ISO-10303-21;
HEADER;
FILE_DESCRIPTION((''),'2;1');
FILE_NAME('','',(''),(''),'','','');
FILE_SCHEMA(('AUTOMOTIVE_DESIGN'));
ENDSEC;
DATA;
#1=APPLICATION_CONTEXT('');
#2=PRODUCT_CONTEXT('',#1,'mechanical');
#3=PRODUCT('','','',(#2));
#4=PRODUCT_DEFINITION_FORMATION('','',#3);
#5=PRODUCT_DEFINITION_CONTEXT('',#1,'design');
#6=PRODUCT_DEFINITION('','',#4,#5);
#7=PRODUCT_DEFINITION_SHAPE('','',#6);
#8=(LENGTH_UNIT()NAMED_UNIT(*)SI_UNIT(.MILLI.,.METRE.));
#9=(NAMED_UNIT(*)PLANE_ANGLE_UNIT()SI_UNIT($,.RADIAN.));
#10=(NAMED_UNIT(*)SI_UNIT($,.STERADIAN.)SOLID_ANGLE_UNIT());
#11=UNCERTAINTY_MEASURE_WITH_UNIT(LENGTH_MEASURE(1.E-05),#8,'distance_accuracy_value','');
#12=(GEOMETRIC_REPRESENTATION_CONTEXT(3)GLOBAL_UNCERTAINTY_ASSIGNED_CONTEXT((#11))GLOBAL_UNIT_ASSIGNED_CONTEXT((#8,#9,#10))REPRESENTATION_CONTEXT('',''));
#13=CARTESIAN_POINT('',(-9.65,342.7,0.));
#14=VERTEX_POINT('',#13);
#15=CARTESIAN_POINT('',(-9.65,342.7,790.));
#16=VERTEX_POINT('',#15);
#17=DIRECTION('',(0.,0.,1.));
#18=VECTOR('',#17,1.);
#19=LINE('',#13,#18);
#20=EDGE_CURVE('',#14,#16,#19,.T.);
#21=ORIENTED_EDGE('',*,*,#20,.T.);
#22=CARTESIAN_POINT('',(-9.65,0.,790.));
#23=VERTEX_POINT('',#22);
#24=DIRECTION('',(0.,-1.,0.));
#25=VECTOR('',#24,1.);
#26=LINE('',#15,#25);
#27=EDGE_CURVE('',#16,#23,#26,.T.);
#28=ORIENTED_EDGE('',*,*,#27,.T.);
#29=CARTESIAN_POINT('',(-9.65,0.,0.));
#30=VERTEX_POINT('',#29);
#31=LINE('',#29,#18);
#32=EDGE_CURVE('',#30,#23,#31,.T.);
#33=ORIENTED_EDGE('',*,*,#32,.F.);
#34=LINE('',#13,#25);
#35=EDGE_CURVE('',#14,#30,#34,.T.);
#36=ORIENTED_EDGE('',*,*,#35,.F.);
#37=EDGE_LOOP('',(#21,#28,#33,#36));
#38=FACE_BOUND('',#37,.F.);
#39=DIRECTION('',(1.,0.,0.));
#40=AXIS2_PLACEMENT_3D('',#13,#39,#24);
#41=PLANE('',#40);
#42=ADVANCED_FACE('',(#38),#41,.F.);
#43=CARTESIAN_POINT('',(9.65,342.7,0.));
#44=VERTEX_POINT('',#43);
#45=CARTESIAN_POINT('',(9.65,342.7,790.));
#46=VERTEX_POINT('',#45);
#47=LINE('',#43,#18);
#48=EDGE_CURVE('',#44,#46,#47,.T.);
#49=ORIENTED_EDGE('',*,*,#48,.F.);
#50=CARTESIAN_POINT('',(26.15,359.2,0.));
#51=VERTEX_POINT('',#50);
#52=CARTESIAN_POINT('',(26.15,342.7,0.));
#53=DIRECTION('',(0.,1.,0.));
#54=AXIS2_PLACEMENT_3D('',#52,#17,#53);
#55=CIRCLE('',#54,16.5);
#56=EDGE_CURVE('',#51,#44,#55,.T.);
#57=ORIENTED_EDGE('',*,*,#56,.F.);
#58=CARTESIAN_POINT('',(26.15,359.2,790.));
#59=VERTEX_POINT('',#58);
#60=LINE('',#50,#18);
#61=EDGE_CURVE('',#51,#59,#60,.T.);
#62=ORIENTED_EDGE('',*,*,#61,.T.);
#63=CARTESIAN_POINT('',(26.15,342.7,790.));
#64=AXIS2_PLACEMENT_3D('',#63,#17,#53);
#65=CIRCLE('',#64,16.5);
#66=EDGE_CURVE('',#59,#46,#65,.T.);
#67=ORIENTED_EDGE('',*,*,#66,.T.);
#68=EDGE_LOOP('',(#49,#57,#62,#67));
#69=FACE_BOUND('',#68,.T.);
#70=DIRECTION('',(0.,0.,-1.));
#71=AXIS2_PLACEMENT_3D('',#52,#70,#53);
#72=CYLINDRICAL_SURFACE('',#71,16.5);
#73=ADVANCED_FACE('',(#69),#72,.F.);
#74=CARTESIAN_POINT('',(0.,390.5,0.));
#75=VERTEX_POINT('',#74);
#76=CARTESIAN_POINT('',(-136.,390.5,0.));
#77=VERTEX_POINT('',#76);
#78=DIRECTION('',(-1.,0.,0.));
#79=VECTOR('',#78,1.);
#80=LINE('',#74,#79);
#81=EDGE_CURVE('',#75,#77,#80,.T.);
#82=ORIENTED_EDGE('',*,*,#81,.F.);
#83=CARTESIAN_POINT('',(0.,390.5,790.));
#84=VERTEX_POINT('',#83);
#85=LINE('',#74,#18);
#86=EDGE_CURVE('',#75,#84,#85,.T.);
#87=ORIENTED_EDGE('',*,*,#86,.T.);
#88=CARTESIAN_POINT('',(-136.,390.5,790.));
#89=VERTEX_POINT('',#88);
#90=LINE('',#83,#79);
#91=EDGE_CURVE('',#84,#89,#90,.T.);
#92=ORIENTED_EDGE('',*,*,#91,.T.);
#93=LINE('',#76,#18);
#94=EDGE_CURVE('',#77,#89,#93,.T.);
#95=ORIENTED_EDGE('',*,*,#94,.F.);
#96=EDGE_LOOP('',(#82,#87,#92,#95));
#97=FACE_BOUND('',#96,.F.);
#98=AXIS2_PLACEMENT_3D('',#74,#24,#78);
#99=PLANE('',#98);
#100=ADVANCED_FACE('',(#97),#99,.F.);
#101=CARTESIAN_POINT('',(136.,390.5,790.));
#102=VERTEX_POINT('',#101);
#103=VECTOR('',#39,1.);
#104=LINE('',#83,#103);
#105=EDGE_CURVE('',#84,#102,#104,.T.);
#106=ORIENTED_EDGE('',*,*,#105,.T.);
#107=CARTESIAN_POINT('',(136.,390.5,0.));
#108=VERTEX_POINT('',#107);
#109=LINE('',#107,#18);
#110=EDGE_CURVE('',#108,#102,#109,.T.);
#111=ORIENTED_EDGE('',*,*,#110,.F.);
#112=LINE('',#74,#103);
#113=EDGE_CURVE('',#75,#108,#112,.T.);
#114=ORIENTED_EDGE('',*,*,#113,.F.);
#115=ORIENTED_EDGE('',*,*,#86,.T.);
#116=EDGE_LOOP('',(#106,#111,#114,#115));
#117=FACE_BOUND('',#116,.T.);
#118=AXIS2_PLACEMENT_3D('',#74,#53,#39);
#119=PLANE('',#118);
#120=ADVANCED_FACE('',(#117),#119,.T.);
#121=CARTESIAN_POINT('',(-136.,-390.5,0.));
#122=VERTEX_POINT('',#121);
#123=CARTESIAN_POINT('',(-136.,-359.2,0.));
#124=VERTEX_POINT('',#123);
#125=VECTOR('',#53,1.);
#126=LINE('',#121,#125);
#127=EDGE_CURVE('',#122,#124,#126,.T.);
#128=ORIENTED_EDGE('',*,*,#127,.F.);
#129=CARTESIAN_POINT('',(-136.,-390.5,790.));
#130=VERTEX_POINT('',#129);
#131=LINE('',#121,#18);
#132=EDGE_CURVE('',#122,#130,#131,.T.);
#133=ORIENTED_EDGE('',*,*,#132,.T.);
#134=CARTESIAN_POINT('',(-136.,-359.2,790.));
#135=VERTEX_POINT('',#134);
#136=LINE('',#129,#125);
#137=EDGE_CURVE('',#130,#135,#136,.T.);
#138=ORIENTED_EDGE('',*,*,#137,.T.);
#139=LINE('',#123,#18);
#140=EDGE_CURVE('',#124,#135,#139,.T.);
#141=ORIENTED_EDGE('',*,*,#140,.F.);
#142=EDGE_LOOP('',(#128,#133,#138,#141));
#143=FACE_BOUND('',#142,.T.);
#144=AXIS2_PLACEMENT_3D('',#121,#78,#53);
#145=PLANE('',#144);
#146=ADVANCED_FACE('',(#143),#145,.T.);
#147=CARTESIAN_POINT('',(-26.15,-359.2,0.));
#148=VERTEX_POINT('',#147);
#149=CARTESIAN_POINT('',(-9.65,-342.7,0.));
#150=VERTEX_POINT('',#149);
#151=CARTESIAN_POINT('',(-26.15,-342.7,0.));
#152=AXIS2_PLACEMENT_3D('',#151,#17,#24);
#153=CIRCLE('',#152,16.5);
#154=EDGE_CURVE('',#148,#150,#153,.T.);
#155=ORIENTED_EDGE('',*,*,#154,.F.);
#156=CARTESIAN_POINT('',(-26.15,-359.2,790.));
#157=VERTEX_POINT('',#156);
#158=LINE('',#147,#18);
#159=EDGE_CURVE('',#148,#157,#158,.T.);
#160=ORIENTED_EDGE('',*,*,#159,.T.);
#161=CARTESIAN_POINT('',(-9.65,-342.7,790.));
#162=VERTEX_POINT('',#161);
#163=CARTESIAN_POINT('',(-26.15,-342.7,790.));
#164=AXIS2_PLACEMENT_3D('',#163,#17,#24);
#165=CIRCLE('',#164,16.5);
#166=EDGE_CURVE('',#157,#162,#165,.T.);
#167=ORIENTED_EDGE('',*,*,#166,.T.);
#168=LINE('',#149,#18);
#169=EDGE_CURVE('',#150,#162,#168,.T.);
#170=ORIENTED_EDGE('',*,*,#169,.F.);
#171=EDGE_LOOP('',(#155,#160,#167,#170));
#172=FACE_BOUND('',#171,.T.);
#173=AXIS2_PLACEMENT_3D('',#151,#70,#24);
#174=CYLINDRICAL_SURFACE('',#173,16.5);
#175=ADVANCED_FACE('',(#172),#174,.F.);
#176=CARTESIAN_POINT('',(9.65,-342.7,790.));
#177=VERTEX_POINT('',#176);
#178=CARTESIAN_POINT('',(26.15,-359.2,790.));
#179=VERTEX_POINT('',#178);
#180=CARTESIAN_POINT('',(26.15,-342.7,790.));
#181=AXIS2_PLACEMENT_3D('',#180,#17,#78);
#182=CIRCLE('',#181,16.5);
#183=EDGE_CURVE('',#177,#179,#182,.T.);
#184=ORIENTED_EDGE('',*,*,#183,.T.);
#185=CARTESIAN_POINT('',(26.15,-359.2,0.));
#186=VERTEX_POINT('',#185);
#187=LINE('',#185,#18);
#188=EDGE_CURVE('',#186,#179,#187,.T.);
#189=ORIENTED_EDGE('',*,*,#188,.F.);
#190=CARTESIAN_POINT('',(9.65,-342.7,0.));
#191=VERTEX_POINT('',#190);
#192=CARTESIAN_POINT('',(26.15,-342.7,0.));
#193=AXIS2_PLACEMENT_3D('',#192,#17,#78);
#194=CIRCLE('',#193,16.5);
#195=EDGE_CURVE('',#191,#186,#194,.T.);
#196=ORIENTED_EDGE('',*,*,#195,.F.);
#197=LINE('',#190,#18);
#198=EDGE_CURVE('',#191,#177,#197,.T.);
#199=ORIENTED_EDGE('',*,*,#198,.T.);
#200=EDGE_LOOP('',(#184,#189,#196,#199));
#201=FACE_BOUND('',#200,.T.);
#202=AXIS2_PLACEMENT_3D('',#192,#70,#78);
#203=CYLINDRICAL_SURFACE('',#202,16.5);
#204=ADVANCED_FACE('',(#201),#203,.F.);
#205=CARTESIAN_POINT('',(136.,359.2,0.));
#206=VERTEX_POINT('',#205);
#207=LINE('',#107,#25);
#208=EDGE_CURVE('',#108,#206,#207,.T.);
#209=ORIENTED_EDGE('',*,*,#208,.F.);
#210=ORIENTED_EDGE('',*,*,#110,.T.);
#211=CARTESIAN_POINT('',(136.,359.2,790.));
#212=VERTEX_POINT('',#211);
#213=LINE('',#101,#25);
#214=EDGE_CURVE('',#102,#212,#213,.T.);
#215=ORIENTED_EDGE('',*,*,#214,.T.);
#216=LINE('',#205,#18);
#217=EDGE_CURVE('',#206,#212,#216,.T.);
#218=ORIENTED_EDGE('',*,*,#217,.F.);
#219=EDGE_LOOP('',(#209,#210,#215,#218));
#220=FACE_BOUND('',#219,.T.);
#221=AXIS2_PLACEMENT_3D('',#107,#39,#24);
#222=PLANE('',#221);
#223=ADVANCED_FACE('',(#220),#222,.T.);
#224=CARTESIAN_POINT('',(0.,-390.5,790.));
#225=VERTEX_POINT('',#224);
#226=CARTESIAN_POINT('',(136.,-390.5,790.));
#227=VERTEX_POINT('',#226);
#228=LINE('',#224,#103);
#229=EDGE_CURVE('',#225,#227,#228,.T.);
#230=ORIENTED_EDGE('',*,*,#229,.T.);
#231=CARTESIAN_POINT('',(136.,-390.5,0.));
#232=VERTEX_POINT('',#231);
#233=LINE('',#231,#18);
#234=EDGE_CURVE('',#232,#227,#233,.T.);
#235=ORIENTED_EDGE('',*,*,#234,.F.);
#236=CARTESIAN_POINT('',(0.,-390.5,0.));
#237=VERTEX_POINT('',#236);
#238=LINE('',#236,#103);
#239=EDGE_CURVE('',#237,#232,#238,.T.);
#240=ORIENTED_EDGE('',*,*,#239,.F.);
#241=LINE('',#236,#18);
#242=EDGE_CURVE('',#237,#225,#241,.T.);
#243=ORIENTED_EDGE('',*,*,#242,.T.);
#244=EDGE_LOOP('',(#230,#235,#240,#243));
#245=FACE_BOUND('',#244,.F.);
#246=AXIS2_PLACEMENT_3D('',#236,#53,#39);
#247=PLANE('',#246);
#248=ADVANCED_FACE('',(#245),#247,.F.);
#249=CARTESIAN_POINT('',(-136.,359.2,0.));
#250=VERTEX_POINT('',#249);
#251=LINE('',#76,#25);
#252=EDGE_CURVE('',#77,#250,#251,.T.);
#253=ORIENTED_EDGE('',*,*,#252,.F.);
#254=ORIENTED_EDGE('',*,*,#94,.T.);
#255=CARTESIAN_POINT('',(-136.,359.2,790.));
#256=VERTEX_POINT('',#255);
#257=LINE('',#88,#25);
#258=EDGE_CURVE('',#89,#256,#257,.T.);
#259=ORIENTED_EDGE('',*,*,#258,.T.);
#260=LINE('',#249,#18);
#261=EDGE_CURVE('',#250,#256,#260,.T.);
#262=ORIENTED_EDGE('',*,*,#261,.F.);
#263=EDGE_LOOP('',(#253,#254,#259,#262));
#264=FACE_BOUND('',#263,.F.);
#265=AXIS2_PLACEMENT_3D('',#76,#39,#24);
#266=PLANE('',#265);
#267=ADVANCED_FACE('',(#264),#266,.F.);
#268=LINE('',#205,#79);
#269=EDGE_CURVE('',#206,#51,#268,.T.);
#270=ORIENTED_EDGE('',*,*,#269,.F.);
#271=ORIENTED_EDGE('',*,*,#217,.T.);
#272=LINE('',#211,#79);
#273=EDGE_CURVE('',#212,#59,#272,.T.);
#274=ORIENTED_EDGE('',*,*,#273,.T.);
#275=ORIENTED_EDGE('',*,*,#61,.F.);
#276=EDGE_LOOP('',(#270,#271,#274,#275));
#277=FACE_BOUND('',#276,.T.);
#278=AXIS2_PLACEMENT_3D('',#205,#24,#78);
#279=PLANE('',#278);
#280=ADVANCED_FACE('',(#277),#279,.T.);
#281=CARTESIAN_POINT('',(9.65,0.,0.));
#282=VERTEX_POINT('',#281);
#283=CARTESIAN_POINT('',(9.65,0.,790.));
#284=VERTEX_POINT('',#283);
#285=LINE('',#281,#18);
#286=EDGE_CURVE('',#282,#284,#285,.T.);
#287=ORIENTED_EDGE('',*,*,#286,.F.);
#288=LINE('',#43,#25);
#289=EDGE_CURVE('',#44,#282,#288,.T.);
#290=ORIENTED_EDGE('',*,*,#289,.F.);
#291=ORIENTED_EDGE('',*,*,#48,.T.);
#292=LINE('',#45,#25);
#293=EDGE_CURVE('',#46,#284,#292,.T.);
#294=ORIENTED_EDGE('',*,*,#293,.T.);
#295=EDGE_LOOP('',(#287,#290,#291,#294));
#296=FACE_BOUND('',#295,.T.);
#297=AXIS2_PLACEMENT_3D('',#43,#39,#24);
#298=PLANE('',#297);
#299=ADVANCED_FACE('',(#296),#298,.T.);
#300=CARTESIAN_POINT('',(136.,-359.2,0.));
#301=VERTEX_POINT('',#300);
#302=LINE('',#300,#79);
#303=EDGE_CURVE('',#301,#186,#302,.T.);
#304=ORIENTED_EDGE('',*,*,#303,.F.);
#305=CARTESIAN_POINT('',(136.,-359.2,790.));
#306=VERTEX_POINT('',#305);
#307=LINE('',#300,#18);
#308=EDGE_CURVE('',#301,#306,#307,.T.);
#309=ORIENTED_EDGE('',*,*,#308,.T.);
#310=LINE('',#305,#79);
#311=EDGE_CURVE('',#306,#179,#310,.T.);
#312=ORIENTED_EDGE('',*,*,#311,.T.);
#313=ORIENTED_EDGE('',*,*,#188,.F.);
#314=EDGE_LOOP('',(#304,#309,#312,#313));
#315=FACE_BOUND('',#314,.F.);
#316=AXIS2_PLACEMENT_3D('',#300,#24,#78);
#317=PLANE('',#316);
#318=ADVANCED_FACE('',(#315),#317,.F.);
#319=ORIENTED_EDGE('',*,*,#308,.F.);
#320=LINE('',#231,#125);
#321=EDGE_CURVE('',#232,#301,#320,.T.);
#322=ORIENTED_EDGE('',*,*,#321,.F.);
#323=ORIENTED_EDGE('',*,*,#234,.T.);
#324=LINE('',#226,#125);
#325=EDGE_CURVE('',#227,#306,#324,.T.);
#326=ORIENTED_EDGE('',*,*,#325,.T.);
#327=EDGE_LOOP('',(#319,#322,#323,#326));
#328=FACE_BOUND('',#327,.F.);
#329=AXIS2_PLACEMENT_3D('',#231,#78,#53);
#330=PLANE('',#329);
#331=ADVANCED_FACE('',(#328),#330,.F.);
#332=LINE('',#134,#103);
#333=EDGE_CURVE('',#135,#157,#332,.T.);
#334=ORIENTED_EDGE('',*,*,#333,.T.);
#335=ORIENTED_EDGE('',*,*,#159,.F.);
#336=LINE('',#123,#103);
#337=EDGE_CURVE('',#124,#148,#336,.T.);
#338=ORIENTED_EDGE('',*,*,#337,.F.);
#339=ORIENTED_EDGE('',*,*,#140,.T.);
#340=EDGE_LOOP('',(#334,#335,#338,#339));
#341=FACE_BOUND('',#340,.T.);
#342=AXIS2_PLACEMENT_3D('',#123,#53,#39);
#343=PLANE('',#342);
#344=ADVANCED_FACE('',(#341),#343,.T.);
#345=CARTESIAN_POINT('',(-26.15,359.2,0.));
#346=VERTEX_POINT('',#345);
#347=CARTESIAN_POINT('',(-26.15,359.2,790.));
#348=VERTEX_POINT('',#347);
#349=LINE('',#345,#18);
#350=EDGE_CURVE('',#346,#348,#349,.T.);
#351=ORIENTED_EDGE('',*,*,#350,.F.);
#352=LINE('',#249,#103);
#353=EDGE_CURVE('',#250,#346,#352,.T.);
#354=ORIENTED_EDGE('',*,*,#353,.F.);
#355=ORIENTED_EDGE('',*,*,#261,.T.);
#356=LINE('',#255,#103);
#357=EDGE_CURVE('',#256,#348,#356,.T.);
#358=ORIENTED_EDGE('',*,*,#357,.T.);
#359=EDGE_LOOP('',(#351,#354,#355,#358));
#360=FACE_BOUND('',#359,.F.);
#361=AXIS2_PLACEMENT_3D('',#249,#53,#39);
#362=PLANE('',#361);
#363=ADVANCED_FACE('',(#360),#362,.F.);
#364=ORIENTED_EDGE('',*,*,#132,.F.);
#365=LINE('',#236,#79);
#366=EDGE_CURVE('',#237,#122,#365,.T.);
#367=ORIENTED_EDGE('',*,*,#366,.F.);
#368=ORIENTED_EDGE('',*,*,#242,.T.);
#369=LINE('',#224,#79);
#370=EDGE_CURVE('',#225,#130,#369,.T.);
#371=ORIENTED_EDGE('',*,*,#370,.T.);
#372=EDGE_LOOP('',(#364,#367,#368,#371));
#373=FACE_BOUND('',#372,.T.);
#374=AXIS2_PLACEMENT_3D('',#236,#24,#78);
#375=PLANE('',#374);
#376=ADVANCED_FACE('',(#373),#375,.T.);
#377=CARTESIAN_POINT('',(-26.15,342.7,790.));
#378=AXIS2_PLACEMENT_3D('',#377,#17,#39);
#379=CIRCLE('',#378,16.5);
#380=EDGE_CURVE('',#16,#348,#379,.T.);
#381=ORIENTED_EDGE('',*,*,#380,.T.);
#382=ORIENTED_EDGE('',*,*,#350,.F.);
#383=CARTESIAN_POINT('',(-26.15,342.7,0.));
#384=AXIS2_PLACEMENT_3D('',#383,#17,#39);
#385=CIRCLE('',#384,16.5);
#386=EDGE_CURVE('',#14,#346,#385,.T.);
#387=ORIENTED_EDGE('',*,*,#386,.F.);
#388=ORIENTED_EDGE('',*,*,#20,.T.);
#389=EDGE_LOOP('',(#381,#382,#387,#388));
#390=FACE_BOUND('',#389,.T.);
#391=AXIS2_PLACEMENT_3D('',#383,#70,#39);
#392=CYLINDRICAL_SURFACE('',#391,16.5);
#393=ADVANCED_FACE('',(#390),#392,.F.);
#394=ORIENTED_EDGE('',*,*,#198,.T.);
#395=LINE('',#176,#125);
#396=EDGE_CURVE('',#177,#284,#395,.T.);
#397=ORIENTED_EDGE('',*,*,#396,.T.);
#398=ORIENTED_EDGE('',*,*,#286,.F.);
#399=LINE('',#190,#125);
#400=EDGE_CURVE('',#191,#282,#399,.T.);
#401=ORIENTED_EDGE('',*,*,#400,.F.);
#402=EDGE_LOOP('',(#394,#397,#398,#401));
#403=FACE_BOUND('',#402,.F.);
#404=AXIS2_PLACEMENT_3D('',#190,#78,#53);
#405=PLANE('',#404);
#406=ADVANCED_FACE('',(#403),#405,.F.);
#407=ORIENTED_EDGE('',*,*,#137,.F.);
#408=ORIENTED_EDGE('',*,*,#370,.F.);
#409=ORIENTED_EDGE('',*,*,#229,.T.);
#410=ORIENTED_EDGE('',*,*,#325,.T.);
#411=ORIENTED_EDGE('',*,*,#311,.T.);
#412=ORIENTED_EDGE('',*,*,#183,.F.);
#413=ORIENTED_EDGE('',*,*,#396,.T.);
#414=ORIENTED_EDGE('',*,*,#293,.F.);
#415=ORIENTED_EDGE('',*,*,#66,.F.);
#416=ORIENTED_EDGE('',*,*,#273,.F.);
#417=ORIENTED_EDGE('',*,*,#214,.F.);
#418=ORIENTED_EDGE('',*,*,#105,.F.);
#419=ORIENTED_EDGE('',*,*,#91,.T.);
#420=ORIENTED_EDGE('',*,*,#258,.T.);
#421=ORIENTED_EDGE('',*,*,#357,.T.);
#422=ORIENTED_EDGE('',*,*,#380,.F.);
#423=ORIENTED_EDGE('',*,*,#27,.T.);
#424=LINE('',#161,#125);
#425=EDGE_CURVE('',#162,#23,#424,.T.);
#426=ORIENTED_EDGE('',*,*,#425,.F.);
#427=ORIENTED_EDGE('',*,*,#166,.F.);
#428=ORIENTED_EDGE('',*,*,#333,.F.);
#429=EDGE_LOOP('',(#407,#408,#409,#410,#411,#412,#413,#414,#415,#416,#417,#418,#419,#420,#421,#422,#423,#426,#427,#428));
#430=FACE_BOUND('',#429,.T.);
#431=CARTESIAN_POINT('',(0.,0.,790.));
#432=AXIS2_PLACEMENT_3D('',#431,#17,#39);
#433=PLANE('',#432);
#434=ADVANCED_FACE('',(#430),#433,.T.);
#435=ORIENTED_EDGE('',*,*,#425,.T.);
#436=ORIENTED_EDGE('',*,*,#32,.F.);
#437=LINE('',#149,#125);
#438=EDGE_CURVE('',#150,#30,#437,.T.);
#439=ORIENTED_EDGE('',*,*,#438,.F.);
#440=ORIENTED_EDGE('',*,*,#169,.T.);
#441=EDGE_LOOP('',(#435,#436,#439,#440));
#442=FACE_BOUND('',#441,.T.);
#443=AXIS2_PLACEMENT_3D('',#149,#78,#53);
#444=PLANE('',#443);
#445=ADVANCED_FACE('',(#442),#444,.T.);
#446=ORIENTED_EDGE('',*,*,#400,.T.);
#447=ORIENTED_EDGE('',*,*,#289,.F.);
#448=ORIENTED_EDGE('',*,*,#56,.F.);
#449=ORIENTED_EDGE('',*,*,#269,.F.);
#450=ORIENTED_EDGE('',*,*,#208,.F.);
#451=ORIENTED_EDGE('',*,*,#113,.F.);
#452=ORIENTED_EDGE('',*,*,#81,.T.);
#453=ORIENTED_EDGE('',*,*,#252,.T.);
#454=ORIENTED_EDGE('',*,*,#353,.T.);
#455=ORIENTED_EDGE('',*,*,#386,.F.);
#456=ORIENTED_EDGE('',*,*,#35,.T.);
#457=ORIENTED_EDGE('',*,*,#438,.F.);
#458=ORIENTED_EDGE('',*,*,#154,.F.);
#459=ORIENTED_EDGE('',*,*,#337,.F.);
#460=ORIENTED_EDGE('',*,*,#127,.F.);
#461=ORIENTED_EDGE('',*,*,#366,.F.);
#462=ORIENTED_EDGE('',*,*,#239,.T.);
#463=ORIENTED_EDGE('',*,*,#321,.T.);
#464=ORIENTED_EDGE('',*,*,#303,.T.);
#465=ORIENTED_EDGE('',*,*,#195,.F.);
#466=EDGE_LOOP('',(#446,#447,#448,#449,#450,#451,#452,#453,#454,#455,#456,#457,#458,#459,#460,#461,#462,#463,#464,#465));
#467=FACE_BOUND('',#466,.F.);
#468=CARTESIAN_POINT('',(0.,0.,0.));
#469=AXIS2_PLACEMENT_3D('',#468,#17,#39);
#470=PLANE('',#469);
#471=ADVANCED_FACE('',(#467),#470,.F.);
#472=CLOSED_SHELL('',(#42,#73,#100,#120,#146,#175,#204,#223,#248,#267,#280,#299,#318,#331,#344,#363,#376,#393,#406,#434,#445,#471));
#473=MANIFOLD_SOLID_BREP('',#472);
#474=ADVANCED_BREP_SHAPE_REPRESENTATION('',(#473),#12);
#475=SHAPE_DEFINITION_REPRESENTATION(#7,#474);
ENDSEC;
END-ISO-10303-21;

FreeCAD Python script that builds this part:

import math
import FreeCAD as App
import Part
import Sketcher

doc = App.newDocument("Part")
params = doc.addObject("Spreadsheet::Sheet", "Params")
for row, (alias, value) in enumerate([
    ("sketch1_radius", "16.5 mm"),
    ("sketch1_height", "31.3 mm"),
    ("pad1_length", "790 mm"),
], start=1):
    params.set(f"A{row}", alias)
    params.set(f"B{row}", "=" + value)
    params.setAlias(f"B{row}", alias)

body = doc.addObject("PartDesign::Body", "Body")

# Sketch on XY plane
sketch1 = body.newObject("Sketcher::SketchObject", "Sketch")
sketch1.AttachmentSupport = (doc.getObject("XY_Plane"), [""])
sketch1.MapMode = "FlatFace"
sketch1.addGeometry(Part.LineSegment(App.Vector(-136, -359, 0), App.Vector(-136, -390, 0)), False)
sketch1.addGeometry(Part.LineSegment(App.Vector(-136, -390, 0), App.Vector(136, -390, 0)), False)
sketch1.addGeometry(Part.LineSegment(App.Vector(136, -390, 0), App.Vector(136, -359, 0)), False)
sketch1.addGeometry(Part.LineSegment(App.Vector(136, -359, 0), App.Vector(26, -359, 0)), False)
sketch1.addGeometry(Part.ArcOfCircle(Part.Circle(App.Vector(26, -343, 0), App.Vector(0, 0, 1), 16), math.radians(180), math.radians(270)), False)
sketch1.addGeometry(Part.LineSegment(App.Vector(10, -343, 0), App.Vector(10, 343, 0)), False)
sketch1.addGeometry(Part.ArcOfCircle(Part.Circle(App.Vector(26, 343, 0), App.Vector(0, 0, 1), 16), math.radians(90), math.radians(180)), False)
sketch1.addGeometry(Part.LineSegment(App.Vector(26, 359, 0), App.Vector(136, 359, 0)), False)
sketch1.addGeometry(Part.LineSegment(App.Vector(136, 359, 0), App.Vector(136, 390, 0)), False)
sketch1.addGeometry(Part.LineSegment(App.Vector(136, 390, 0), App.Vector(-136, 390, 0)), False)
sketch1.addGeometry(Part.LineSegment(App.Vector(-136, 390, 0), App.Vector(-136, 359, 0)), False)
sketch1.addGeometry(Part.LineSegment(App.Vector(-136, 359, 0), App.Vector(-26, 359, 0)), False)
sketch1.addGeometry(Part.ArcOfCircle(Part.Circle(App.Vector(-26, 343, 0), App.Vector(0, 0, 1), 16), math.radians(0), math.radians(90)), False)
sketch1.addGeometry(Part.LineSegment(App.Vector(-10, 343, 0), App.Vector(-10, -343, 0)), False)
sketch1.addGeometry(Part.ArcOfCircle(Part.Circle(App.Vector(-26, -343, 0), App.Vector(0, 0, 1), 16), math.radians(-90), math.radians(0)), False)
sketch1.addGeometry(Part.LineSegment(App.Vector(-26, -359, 0), App.Vector(-136, -359, 0)), False)
sketch1.addConstraint(Sketcher.Constraint("Coincident", 0, 2, 1, 1))
sketch1.addConstraint(Sketcher.Constraint("Coincident", 1, 2, 2, 1))
sketch1.addConstraint(Sketcher.Constraint("Coincident", 2, 2, 3, 1))
sketch1.addConstraint(Sketcher.Constraint("Tangent", 3, 2, 4, 2))
sketch1.addConstraint(Sketcher.Constraint("Tangent", 4, 1, 5, 1))
sketch1.addConstraint(Sketcher.Constraint("Tangent", 5, 2, 6, 2))
sketch1.addConstraint(Sketcher.Constraint("Tangent", 6, 1, 7, 1))
sketch1.addConstraint(Sketcher.Constraint("Coincident", 7, 2, 8, 1))
sketch1.addConstraint(Sketcher.Constraint("Coincident", 8, 2, 9, 1))
sketch1.addConstraint(Sketcher.Constraint("Coincident", 9, 2, 10, 1))
sketch1.addConstraint(Sketcher.Constraint("Coincident", 10, 2, 11, 1))
sketch1.addConstraint(Sketcher.Constraint("Tangent", 11, 2, 12, 2))
sketch1.addConstraint(Sketcher.Constraint("Tangent", 12, 1, 13, 1))
sketch1.addConstraint(Sketcher.Constraint("Tangent", 13, 2, 14, 2))
sketch1.addConstraint(Sketcher.Constraint("Tangent", 14, 1, 15, 1))
sketch1.addConstraint(Sketcher.Constraint("Coincident", 15, 2, 0, 1))
sketch1.addConstraint(Sketcher.Constraint("Vertical", 0))
sketch1.addConstraint(Sketcher.Constraint("Horizontal", 1))
sketch1.addConstraint(Sketcher.Constraint("Vertical", 2))
sketch1.addConstraint(Sketcher.Constraint("Horizontal", 3))
sketch1.addConstraint(Sketcher.Constraint("Vertical", 5))
sketch1.addConstraint(Sketcher.Constraint("Horizontal", 7))
sketch1.addConstraint(Sketcher.Constraint("Vertical", 8))
sketch1.addConstraint(Sketcher.Constraint("Horizontal", 9))
sketch1.addConstraint(Sketcher.Constraint("Vertical", 10))
sketch1.addConstraint(Sketcher.Constraint("Horizontal", 11))
sketch1.addConstraint(Sketcher.Constraint("Vertical", 13))
sketch1.addConstraint(Sketcher.Constraint("Horizontal", 15))
sketch1.addConstraint(Sketcher.Constraint("Equal", 4, 6))
sketch1.addConstraint(Sketcher.Constraint("Equal", 6, 12))
sketch1.addConstraint(Sketcher.Constraint("Equal", 12, 14))
sketch1.addConstraint(Sketcher.Constraint("Symmetric", 4, 3, 12, 3, -1, 1))
sketch1.addConstraint(Sketcher.Constraint("Symmetric", 0, 2, 8, 2, -1, 1))
sketch1.addConstraint(Sketcher.Constraint("Symmetric", 7, 2, 10, 2, -2))
sketch1.addConstraint(Sketcher.Constraint("Symmetric", 2, 2, 15, 2, -2))
sketch1.addConstraint(Sketcher.Constraint("Radius", 4, 16.5))
sketch1.addConstraint(Sketcher.Constraint("DistanceY", 0, 2, 0, 1, 31.3))
sketch1.addConstraint(Sketcher.Constraint("DistanceX", 0, 2, -1, 1, 136.0))
sketch1.addConstraint(Sketcher.Constraint("DistanceY", 0, 2, -1, 1, 390.5))
sketch1.addConstraint(Sketcher.Constraint("DistanceX", -1, 1, 4, 1, 9.65))
sketch1.setExpression("Constraints[35]", "Params.sketch1_radius")
sketch1.setExpression("Constraints[36]", "Params.sketch1_height")
pad1 = body.newObject("PartDesign::Pad", "Pad")
pad1.Profile = sketch1
pad1.setExpression("Length", "Params.pad1_length")

doc.recompute()
